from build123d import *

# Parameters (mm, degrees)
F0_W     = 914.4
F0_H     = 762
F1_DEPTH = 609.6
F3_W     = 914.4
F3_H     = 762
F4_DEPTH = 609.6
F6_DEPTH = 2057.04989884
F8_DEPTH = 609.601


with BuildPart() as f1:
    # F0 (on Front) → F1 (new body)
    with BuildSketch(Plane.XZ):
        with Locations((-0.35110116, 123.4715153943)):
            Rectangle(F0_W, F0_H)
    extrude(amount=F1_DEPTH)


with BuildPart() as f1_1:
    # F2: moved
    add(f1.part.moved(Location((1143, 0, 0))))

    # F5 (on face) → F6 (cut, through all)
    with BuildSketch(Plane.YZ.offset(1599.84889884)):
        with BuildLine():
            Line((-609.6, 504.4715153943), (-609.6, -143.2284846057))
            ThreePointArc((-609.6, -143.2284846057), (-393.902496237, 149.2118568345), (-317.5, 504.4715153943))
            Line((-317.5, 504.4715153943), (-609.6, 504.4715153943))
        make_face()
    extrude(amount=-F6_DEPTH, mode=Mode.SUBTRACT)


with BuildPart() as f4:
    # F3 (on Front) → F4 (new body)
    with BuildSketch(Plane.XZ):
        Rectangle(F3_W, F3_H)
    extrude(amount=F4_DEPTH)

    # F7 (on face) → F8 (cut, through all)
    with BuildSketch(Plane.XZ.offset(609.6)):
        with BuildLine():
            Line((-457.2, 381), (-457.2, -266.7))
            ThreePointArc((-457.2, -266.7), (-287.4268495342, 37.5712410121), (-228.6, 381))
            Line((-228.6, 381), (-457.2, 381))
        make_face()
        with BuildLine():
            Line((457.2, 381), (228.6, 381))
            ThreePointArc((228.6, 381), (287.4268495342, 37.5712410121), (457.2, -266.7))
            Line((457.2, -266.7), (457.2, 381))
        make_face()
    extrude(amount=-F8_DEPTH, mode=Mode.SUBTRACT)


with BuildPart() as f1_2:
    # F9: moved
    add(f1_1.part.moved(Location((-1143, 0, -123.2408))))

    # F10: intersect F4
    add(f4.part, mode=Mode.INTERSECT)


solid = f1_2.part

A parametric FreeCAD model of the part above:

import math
import FreeCAD as App
import Part
import Sketcher

V = App.Vector
Q = App.Units.Quantity


def add_polygon(sketch, points):
    """Adds a closed chain of lines whose ends are joined by coincident constraints."""
    first, n = sketch.GeometryCount, len(points)
    for a, b in zip(points, points[1:] + points[:1]):
        sketch.addGeometry(Part.LineSegment(App.Vector(*a, 0), App.Vector(*b, 0)), False)
    for i in range(n):
        sketch.addConstraint(Sketcher.Constraint("Coincident", first + i, 2, first + (i + 1) % n, 1))

doc = App.newDocument("Part")
params = doc.addObject("Spreadsheet::Sheet", "Params")
for row, (alias, value) in enumerate([
    ("sketch1_width", "36 in"),
    ("sketch1_height", "30 in"),
    ("pad1_length", "24 in"),
    ("sketch2_width", "11.5 in"),
    ("sketch2_height", "25.5 in"),
    ("sketch3_width", "36 in"),
    ("sketch3_height", "30 in"),
    ("pad2_length", "24 in"),
    ("sketch4_width", "9 in"),
    ("sketch4_height", "25.5 in"),
], start=1):
    params.set(f"A{row}", alias)
    params.set(f"B{row}", "=" + value)
    params.setAlias(f"B{row}", alias)

body = doc.addObject("PartDesign::Body", "Body")

# Sketch on XZ plane
sketch1 = doc.addObject("Sketcher::SketchObject", "Sketch")
body.addObject(sketch1)
sketch1.AttachmentSupport = (doc.XZ_Plane, [""])
sketch1.MapMode = "FlatFace"
add_polygon(sketch1, [(-458, 504), (-458, -258), (457, -258), (457, 504)])  # lines 0-3
sketch1.addConstraint(Sketcher.Constraint("Vertical", 0))
sketch1.addConstraint(Sketcher.Constraint("Horizontal", 1))
sketch1.addConstraint(Sketcher.Constraint("Vertical", 2))
sketch1.addConstraint(Sketcher.Constraint("Horizontal", 3))
sketch1.addConstraint(Sketcher.Constraint("DistanceX", 1, 1, 1, 2, Q("36 in")))
sketch1.addConstraint(Sketcher.Constraint("DistanceY", 0, 2, 0, 1, Q("30 in")))
sketch1.addConstraint(Sketcher.Constraint("DistanceX", 0, 2, -1, 1, 457.551101))
sketch1.addConstraint(Sketcher.Constraint("DistanceY", 0, 2, -1, 1, 257.528485))
sketch1.setExpression("Constraints[8]", "Params.sketch1_width")
sketch1.setExpression("Constraints[9]", "Params.sketch1_height")
pad1 = doc.addObject("PartDesign::Pad", "Pad")
body.addObject(pad1)
pad1.Profile = sketch1
pad1.setExpression("Length", "Params.pad1_length")
body2 = doc.addObject("PartDesign::Body", "Body001")
doc.recompute()

body.Placement = App.Placement(V(1143, 0, 0), App.Rotation(V(0, 0, 1), 0))
boolean = doc.addObject("PartDesign::Boolean", "Boolean")
body2.addObject(boolean)
boolean.Type = "Fuse"
boolean.addObjects([body])

# Sketch on YZ plane
sketch2 = doc.addObject("Sketcher::SketchObject", "Sketch001")
body2.addObject(sketch2)
sketch2.AttachmentSupport = (doc.getObject("YZ_Plane001"), [""])
sketch2.MapMode = "FlatFace"
sketch2.AttachmentOffset = App.Placement(V(0, 0, 1599.848899), App.Rotation())
sketch2.addGeometry(Part.LineSegment(V(-610, 504, 0), V(-610, -143, 0)), False)
sketch2.addGeometry(Part.ArcOfCircle(Part.Circle(V(-1182, 504, 0), V(0, 0, 1), 864), math.radians(-49), math.radians(0)), False)
sketch2.addGeometry(Part.LineSegment(V(-318, 504, 0), V(-610, 504, 0)), False)
sketch2.addConstraint(Sketcher.Constraint("Coincident", 0, 2, 1, 1))
sketch2.addConstraint(Sketcher.Constraint("Coincident", 1, 2, 2, 1))
sketch2.addConstraint(Sketcher.Constraint("Coincident", 2, 2, 0, 1))
sketch2.addConstraint(Sketcher.Constraint("Vertical", 0))
sketch2.addConstraint(Sketcher.Constraint("Horizontal", 2))
sketch2.addConstraint(Sketcher.Constraint("DistanceX", 2, 2, 2, 1, Q("11.5 in")))
sketch2.addConstraint(Sketcher.Constraint("DistanceY", 0, 2, 0, 1, Q("25.5 in")))
sketch2.addConstraint(Sketcher.Constraint("DistanceX", 0, 2, -1, 1, Q("24 in")))
sketch2.addConstraint(Sketcher.Constraint("DistanceY", 0, 2, 1, 3, Q("25.5 in")))
sketch2.addConstraint(Sketcher.Constraint("DistanceY", -1, 1, 1, 3, 504.471515))
sketch2.setExpression("Constraints[5]", "Params.sketch2_width")
sketch2.setExpression("Constraints[6]", "Params.sketch2_height")
pocket1 = doc.addObject("PartDesign::Pocket", "Pocket")
body2.addObject(pocket1)
pocket1.Profile = sketch2
pocket1.Type = "ThroughAll"
body3 = doc.addObject("PartDesign::Body", "Body002")

# Sketch on XZ plane
sketch3 = doc.addObject("Sketcher::SketchObject", "Sketch002")
body3.addObject(sketch3)
sketch3.AttachmentSupport = (doc.getObject("XZ_Plane002"), [""])
sketch3.MapMode = "FlatFace"
add_polygon(sketch3, [(-457, 381), (-457, -381), (457, -381), (457, 381)])  # lines 0-3
sketch3.addConstraint(Sketcher.Constraint("Vertical", 0))
sketch3.addConstraint(Sketcher.Constraint("Horizontal", 1))
sketch3.addConstraint(Sketcher.Constraint("Vertical", 2))
sketch3.addConstraint(Sketcher.Constraint("Horizontal", 3))
sketch3.addConstraint(Sketcher.Constraint("Symmetric", 0, 2, 2, 2, -1, 1))
sketch3.addConstraint(Sketcher.Constraint("DistanceX", 1, 1, 1, 2, Q("36 in")))
sketch3.addConstraint(Sketcher.Constraint("DistanceY", 0, 2, 0, 1, Q("30 in")))
sketch3.setExpression("Constraints[9]", "Params.sketch3_width")
sketch3.setExpression("Constraints[10]", "Params.sketch3_height")
pad2 = doc.addObject("PartDesign::Pad", "Pad001")
body3.addObject(pad2)
pad2.Profile = sketch3
pad2.setExpression("Length", "Params.pad2_length")

# Sketch on XZ plane
sketch4 = doc.addObject("Sketcher::SketchObject", "Sketch003")
body3.addObject(sketch4)
sketch4.AttachmentSupport = (doc.getObject("XZ_Plane002"), [""])
sketch4.MapMode = "FlatFace"
sketch4.AttachmentOffset = App.Placement(V(0, 0, 24 * 25.4), App.Rotation())
sketch4.addGeometry(Part.LineSegment(V(-457, 381, 0), V(-457, -267, 0)), False)
sketch4.addGeometry(Part.ArcOfCircle(Part.Circle(V(-1260, 381, 0), V(0, 0, 1), 1032), math.radians(-39), math.radians(0)), False)
sketch4.addGeometry(Part.LineSegment(V(-229, 381, 0), V(-457, 381, 0)), False)
sketch4.addGeometry(Part.LineSegment(V(457, 381, 0), V(229, 381, 0)), False)
sketch4.addGeometry(Part.ArcOfCircle(Part.Circle(V(1260, 381, 0), V(0, 0, 1), 1032), math.radians(180), math.radians(219)), False)
sketch4.addGeometry(Part.LineSegment(V(457, -267, 0), V(457, 381, 0)), False)
sketch4.addConstraint(Sketcher.Constraint("Coincident", 0, 2, 1, 1))
sketch4.addConstraint(Sketcher.Constraint("Coincident", 1, 2, 2, 1))
sketch4.addConstraint(Sketcher.Constraint("Coincident", 2, 2, 0, 1))
sketch4.addConstraint(Sketcher.Constraint("Coincident", 3, 2, 4, 1))
sketch4.addConstraint(Sketcher.Constraint("Coincident", 4, 2, 5, 1))
sketch4.addConstraint(Sketcher.Constraint("Coincident", 5, 2, 3, 1))
sketch4.addConstraint(Sketcher.Constraint("Vertical", 0))
sketch4.addConstraint(Sketcher.Constraint("Horizontal", 2))
sketch4.addConstraint(Sketcher.Constraint("Horizontal", 3))
sketch4.addConstraint(Sketcher.Constraint("Vertical", 5))
sketch4.addConstraint(Sketcher.Constraint("Equal", 1, 4))
sketch4.addConstraint(Sketcher.Constraint("Symmetric", 1, 3, 4, 3, -2))
sketch4.addConstraint(Sketcher.Constraint("Symmetric", 2, 2, 5, 2, -2))
sketch4.addConstraint(Sketcher.Constraint("DistanceX", 2, 2, 2, 1, Q("9 in")))
sketch4.addConstraint(Sketcher.Constraint("DistanceY", 0, 2, 0, 1, Q("25.5 in")))
sketch4.addConstraint(Sketcher.Constraint("DistanceY", -1, 1, 1, 3, Q("15 in")))
sketch4.addConstraint(Sketcher.Constraint("DistanceX", 0, 2, -1, 1, Q("18 in")))
sketch4.addConstraint(Sketcher.Constraint("DistanceY", -1, 1, 2, 2, Q("15 in")))
sketch4.setExpression("Constraints[13]", "Params.sketch4_width")
sketch4.setExpression("Constraints[14]", "Params.sketch4_height")
pocket2 = doc.addObject("PartDesign::Pocket", "Pocket001")
body3.addObject(pocket2)
pocket2.Profile = sketch4
pocket2.Type = "ThroughAll"
body4 = doc.addObject("PartDesign::Body", "Body003")
doc.recompute()

body2.Placement = App.Placement(V(-1143, 0, -123.2408), App.Rotation(V(0, 0, 1), 0))
boolean2 = doc.addObject("PartDesign::Boolean", "Boolean001")
body4.addObject(boolean2)
boolean2.Type = "Fuse"
boolean2.addObjects([body2])
doc.recompute()

boolean3 = doc.addObject("PartDesign::Boolean", "Boolean002")
body4.addObject(boolean3)
boolean3.Type = "Common"
boolean3.addObjects([body3])

doc.recompute()
